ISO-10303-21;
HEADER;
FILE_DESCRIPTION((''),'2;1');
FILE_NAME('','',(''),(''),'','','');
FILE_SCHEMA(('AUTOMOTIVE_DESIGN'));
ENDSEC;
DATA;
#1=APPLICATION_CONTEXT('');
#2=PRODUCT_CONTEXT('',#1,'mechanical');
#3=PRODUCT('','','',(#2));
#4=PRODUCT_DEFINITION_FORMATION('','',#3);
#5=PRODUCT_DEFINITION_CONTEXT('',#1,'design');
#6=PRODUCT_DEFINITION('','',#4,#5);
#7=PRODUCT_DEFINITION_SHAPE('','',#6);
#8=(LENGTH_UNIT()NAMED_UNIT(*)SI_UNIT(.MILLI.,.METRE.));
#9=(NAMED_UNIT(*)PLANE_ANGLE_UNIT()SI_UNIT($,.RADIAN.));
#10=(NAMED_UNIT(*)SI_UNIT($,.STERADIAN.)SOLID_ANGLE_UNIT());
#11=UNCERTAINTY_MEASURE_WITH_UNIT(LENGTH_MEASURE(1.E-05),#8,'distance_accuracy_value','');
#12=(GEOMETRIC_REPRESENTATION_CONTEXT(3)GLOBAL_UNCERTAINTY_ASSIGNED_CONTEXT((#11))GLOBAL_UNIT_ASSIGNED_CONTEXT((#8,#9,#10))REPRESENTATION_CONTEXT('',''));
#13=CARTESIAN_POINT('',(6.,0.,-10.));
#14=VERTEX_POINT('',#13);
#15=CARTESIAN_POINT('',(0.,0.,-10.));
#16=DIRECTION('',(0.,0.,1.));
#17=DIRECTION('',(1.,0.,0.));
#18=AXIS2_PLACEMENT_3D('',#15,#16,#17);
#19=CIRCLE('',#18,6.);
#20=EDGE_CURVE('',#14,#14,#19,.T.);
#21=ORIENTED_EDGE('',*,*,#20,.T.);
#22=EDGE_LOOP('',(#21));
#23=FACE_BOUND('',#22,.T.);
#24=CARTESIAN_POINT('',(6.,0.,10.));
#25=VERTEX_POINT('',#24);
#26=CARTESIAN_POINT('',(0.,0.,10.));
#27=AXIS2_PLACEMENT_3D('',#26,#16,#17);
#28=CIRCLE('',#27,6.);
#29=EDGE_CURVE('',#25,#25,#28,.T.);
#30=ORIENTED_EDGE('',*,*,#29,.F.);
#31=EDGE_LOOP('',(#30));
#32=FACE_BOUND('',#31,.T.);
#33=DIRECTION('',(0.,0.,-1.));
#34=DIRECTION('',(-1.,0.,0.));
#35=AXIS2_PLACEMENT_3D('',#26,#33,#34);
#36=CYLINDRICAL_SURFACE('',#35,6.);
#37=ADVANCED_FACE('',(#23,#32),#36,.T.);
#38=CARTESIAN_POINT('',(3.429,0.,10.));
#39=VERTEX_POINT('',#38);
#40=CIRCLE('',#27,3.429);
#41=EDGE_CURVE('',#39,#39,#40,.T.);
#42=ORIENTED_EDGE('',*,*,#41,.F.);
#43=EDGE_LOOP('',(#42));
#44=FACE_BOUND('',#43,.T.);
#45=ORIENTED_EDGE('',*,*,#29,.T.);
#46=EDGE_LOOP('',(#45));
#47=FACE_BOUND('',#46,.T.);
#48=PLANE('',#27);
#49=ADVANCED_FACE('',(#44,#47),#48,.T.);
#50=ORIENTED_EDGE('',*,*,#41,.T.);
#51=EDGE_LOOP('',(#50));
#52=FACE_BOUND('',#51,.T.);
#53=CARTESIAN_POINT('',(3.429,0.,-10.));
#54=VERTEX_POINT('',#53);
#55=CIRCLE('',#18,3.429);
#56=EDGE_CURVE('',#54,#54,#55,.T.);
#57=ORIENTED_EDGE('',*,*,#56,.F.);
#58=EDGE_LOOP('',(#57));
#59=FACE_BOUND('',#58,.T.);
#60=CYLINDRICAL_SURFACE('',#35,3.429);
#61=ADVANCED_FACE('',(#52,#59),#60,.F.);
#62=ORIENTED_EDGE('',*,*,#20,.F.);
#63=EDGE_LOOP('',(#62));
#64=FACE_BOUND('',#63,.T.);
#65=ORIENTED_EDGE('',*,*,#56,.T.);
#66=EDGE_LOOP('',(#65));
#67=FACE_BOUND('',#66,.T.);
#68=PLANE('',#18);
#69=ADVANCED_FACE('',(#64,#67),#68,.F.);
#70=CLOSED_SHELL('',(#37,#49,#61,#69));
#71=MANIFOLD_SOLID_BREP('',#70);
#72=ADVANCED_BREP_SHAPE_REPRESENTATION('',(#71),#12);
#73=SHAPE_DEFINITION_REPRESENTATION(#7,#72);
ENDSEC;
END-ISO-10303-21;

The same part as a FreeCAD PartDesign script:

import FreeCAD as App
import Part
import Sketcher
from FreeCAD import Vector
Q = App.Units.Quantity

doc = App.newDocument("Part")
body = doc.addObject("PartDesign::Body", "Body")

sketch1 = body.newObject("Sketcher::SketchObject", "Sketch")
sketch1.AttachmentSupport = (doc.getObject("XY_Plane"), [""])
sketch1.MapMode = "FlatFace"
sketch1.addGeometry([
    Part.Circle(Vector(0, 0, 0), Vector(0, 0, 1), 6),
    Part.Circle(Vector(0, 0, 0), Vector(0, 0, 1), 3.4),
], False)
sketch1.addConstraint([
    Sketcher.Constraint("Coincident", 0, 3, -1, 1),
    Sketcher.Constraint("Coincident", 1, 3, -1, 1),
    Sketcher.Constraint("Diameter", 0, Q("12 mm")),
    Sketcher.Constraint("Diameter", 1, Q("6.858 mm")),
])
pad1 = body.newObject("PartDesign::Pad", "Pad")
pad1.Profile = sketch1
pad1.Length = 20
pad1.Midplane = True

doc.recompute()
